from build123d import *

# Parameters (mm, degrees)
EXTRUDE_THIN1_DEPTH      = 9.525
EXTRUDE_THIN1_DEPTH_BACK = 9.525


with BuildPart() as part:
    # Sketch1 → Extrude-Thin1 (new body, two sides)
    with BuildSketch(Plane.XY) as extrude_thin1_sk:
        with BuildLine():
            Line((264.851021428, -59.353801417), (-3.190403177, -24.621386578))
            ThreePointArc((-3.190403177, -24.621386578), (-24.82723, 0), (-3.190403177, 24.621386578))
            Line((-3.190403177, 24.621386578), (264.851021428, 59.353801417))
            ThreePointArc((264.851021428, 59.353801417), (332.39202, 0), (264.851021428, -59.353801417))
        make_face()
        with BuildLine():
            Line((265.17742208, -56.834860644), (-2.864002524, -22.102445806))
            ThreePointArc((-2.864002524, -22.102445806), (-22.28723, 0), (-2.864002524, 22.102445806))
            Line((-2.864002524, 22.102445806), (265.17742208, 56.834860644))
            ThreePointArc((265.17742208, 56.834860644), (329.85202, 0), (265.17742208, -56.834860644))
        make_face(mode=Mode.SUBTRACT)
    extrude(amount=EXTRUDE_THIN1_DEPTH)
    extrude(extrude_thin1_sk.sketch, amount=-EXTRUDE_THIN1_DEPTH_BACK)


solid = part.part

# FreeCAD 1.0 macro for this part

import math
import FreeCAD as App
import Part
import Sketcher

V = App.Vector
Q = App.Units.Quantity

doc = App.newDocument("Part")
body = doc.addObject("PartDesign::Body", "Body")

# Sketch on XY plane
sketch1 = body.newObject("Sketcher::SketchObject", "Sketch")
sketch1.AttachmentSupport = (doc.getObject("XY_Plane"), [""])
sketch1.MapMode = "FlatFace"
sketch1.addGeometry([
    Part.LineSegment(V(-3, -25, 0), V(265, -59, 0)),  # 0
    Part.ArcOfCircle(Part.Circle(V(273, 0, 0), V(0, 0, 1), 60), math.radians(-97), math.radians(97)),  # 1
    Part.LineSegment(V(265, 59, 0), V(-3, 25, 0)),  # 2
    Part.ArcOfCircle(Part.Circle(V(0, 0, 0), V(0, 0, 1), 25), math.radians(97), math.radians(263)),  # 3
    Part.LineSegment(V(265, -57, 0), V(-3, -22, 0)),  # 4
    Part.ArcOfCircle(Part.Circle(V(0, 0, 0), V(0, 0, 1), 22), math.radians(97), math.radians(263)),  # 5
    Part.LineSegment(V(-3, 22, 0), V(265, 57, 0)),  # 6
    Part.ArcOfCircle(Part.Circle(V(273, 0, 0), V(0, 0, 1), 57), math.radians(-97), math.radians(97)),  # 7
], False)
sketch1.addConstraint([
    Sketcher.Constraint("Tangent", 0, 2, 1, 1),
    Sketcher.Constraint("Tangent", 1, 2, 2, 1),
    Sketcher.Constraint("Tangent", 2, 2, 3, 1),
    Sketcher.Constraint("Tangent", 3, 2, 0, 1),
    Sketcher.Constraint("Tangent", 4, 2, 5, 2),
    Sketcher.Constraint("Tangent", 5, 1, 6, 1),
    Sketcher.Constraint("Tangent", 6, 2, 7, 2),
    Sketcher.Constraint("Tangent", 7, 1, 4, 1),
    Sketcher.Constraint("Coincident", 3, 3, -1, 1),
    Sketcher.Constraint("Coincident", 5, 3, -1, 1),
    Sketcher.Constraint("Coincident", 7, 3, 1, 3),
    Sketcher.Constraint("PointOnObject", 1, 3, -1),
    Sketcher.Constraint("Parallel", 0, 4),
    Sketcher.Constraint("Radius", 1, Q("2.3563 in")),
    Sketcher.Constraint("Radius", 7, Q("2.2563 in")),
    Sketcher.Constraint("DistanceX", -1, 1, 1, 3, Q("10.73 in")),
    Sketcher.Constraint("Radius", 3, Q("24.82723 mm")),
])
pad1 = body.newObject("PartDesign::Pad", "Pad")
pad1.Profile = sketch1
pad1.Type = "TwoLengths"
pad1.Length = Q("0.375 in")
pad1.Length2 = Q("0.375 in")

doc.recompute()
